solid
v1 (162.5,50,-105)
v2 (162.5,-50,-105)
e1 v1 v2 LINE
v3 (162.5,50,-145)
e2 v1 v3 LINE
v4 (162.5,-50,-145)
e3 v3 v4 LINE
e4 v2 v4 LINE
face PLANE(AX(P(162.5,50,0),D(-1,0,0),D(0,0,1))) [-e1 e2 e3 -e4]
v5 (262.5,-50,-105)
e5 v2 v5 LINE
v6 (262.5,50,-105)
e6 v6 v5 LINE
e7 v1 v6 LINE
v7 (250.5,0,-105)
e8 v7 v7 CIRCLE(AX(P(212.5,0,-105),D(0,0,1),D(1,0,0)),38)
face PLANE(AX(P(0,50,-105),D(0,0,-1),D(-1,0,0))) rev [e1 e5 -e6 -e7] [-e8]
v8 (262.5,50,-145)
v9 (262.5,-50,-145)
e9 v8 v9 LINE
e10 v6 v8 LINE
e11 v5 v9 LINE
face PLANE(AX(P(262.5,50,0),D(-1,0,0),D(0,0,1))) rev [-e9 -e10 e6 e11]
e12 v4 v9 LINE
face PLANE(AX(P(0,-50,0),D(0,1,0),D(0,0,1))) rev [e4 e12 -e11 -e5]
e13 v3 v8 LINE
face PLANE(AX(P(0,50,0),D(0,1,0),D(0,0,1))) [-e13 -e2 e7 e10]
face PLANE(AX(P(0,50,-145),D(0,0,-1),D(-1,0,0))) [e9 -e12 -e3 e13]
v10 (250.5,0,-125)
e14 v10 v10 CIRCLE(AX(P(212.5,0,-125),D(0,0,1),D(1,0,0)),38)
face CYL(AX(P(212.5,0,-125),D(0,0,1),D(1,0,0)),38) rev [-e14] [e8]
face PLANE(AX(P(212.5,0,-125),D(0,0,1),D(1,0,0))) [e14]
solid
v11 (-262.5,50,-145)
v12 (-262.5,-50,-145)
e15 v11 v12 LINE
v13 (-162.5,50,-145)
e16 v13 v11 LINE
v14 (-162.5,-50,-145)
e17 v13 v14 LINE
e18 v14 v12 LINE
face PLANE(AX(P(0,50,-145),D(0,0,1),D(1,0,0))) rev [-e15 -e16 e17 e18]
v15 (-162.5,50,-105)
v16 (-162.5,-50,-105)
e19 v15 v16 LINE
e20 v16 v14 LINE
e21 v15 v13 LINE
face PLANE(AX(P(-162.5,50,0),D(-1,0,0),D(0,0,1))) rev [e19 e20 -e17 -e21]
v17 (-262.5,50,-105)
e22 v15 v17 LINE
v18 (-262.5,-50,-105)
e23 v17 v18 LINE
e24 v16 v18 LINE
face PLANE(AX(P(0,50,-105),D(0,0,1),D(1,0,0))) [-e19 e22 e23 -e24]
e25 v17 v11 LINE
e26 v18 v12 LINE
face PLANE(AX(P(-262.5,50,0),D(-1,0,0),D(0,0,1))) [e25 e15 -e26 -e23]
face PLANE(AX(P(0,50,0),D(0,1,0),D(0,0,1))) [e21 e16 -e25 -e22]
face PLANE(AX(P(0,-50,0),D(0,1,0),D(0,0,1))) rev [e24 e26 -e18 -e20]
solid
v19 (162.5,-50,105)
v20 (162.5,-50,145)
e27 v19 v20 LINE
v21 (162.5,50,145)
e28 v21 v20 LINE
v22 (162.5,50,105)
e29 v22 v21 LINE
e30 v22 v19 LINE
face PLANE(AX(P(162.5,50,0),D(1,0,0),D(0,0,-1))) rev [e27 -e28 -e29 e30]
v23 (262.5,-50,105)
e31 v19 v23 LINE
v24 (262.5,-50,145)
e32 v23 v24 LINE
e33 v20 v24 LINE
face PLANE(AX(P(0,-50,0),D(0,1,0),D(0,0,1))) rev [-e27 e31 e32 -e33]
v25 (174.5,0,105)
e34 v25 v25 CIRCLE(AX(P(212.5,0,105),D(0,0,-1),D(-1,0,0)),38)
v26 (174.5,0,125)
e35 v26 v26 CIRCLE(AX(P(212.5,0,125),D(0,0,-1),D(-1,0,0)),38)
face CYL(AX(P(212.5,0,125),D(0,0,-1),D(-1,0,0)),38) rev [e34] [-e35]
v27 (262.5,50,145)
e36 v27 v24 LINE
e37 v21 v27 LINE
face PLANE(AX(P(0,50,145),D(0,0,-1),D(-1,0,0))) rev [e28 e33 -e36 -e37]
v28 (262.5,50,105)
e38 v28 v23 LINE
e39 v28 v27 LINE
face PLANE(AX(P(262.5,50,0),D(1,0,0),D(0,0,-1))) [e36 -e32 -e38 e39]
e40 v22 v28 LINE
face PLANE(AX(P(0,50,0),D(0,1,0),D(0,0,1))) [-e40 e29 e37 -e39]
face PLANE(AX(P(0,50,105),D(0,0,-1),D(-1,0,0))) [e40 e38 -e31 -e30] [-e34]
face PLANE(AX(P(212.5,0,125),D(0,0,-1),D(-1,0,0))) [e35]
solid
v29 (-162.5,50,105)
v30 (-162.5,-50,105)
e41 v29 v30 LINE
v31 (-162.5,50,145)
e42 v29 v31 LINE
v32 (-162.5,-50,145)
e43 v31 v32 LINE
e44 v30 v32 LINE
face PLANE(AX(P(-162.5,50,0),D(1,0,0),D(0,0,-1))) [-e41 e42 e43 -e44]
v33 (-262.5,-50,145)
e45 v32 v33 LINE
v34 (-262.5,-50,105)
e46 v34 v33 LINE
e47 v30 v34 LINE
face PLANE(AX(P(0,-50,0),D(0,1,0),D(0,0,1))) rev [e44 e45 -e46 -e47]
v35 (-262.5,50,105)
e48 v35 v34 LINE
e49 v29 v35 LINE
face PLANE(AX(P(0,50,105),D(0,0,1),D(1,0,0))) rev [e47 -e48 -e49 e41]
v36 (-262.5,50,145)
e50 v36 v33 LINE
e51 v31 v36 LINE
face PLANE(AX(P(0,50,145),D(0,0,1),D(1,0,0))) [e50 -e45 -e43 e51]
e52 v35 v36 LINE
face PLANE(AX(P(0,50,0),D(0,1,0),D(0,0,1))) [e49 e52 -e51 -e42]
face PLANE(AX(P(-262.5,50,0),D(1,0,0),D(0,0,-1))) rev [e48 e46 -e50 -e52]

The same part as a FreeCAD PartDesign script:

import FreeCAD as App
import Part
import Sketcher
from FreeCAD import Vector

doc = App.newDocument("Part")
body = doc.addObject("PartDesign::Body", "Body")

# Sketch on XZ plane
sketch1 = body.newObject("Sketcher::SketchObject", "Sketch")
sketch1.AttachmentSupport = (doc.getObject("XZ_Plane"), [""])
sketch1.MapMode = "FlatFace"
sketch1.addGeometry(Part.LineSegment(Vector(162, -145, 0), Vector(162, -105, 0)), False)
sketch1.addGeometry(Part.LineSegment(Vector(162, -105, 0), Vector(262, -105, 0)), False)
sketch1.addGeometry(Part.LineSegment(Vector(262, -105, 0), Vector(262, -145, 0)), False)
sketch1.addGeometry(Part.LineSegment(Vector(262, -145, 0), Vector(162, -145, 0)), False)
sketch1.addConstraint(Sketcher.Constraint("Coincident", 0, 2, 1, 1))
sketch1.addConstraint(Sketcher.Constraint("Coincident", 1, 2, 2, 1))
sketch1.addConstraint(Sketcher.Constraint("Coincident", 2, 2, 3, 1))
sketch1.addConstraint(Sketcher.Constraint("Coincident", 3, 2, 0, 1))
sketch1.addConstraint(Sketcher.Constraint("Vertical", 0))
sketch1.addConstraint(Sketcher.Constraint("Horizontal", 1))
sketch1.addConstraint(Sketcher.Constraint("Vertical", 2))
sketch1.addConstraint(Sketcher.Constraint("Horizontal", 3))
sketch1.addConstraint(Sketcher.Constraint("DistanceX", 1, 1, 1, 2, 100.0))
sketch1.addConstraint(Sketcher.Constraint("DistanceY", 0, 1, 0, 2, 40.0))
sketch1.addConstraint(Sketcher.Constraint("DistanceY", 0, 2, -1, 1, 105.0))
sketch1.addConstraint(Sketcher.Constraint("DistanceX", -1, 1, 0, 2, 162.5))
pad1 = body.newObject("PartDesign::Pad", "Pad")
pad1.Profile = sketch1
pad1.Length = 100
pad1.Midplane = True

# Sketch on XY plane
sketch2 = body.newObject("Sketcher::SketchObject", "Sketch001")
sketch2.AttachmentSupport = (doc.getObject("XY_Plane"), [""])
sketch2.MapMode = "FlatFace"
sketch2.AttachmentOffset = App.Placement(Vector(0, 0, -105), App.Rotation())
sketch2.addGeometry(Part.Circle(Vector(212, 0, 0), Vector(0, 0, 1), 38), False)
sketch2.addConstraint(Sketcher.Constraint("PointOnObject", 0, 3, -1))
sketch2.addConstraint(Sketcher.Constraint("Diameter", 0, 76.0))
sketch2.addConstraint(Sketcher.Constraint("DistanceX", -1, 1, 0, 3, 212.5))
pocket1 = body.newObject("PartDesign::Pocket", "Pocket")
pocket1.Profile = sketch2
pocket1.Length = 20
body2 = doc.addObject("PartDesign::Body", "Body001")

# Sketch on XZ plane
sketch3 = body2.newObject("Sketcher::SketchObject", "Sketch002")
sketch3.AttachmentSupport = (doc.getObject("XZ_Plane001"), [""])
sketch3.MapMode = "FlatFace"
sketch3.addGeometry(Part.LineSegment(Vector(162, 105, 0), Vector(162, 145, 0)), False)
sketch3.addGeometry(Part.LineSegment(Vector(162, 145, 0), Vector(262, 145, 0)), False)
sketch3.addGeometry(Part.LineSegment(Vector(262, 145, 0), Vector(262, 105, 0)), False)
sketch3.addGeometry(Part.LineSegment(Vector(262, 105, 0), Vector(162, 105, 0)), False)
sketch3.addConstraint(Sketcher.Constraint("Coincident", 0, 2, 1, 1))
sketch3.addConstraint(Sketcher.Constraint("Coincident", 1, 2, 2, 1))
sketch3.addConstraint(Sketcher.Constraint("Coincident", 2, 2, 3, 1))
sketch3.addConstraint(Sketcher.Constraint("Coincident", 3, 2, 0, 1))
sketch3.addConstraint(Sketcher.Constraint("Vertical", 0))
sketch3.addConstraint(Sketcher.Constraint("Horizontal", 1))
sketch3.addConstraint(Sketcher.Constraint("Vertical", 2))
sketch3.addConstraint(Sketcher.Constraint("Horizontal", 3))
sketch3.addConstraint(Sketcher.Constraint("DistanceX", 1, 1, 1, 2, 100.0))
sketch3.addConstraint(Sketcher.Constraint("DistanceY", 0, 1, 0, 2, 40.0))
sketch3.addConstraint(Sketcher.Constraint("DistanceY", -1, 1, 0, 2, 145.0))
sketch3.addConstraint(Sketcher.Constraint("DistanceX", -1, 1, 0, 2, 162.5))
pad2 = body2.newObject("PartDesign::Pad", "Pad001")
pad2.Profile = sketch3
pad2.Length = 100
pad2.Midplane = True

# Sketch on XY plane
sketch4 = body2.newObject("Sketcher::SketchObject", "Sketch003")
sketch4.AttachmentSupport = (doc.getObject("XY_Plane001"), [""])
sketch4.MapMode = "FlatFace"
sketch4.AttachmentOffset = App.Placement(Vector(0, 0, 105), App.Rotation())
sketch4.addGeometry(Part.Circle(Vector(212, 0, 0), Vector(0, 0, 1), 38), False)
sketch4.addConstraint(Sketcher.Constraint("PointOnObject", 0, 3, -1))
sketch4.addConstraint(Sketcher.Constraint("Diameter", 0, 76.0))
sketch4.addConstraint(Sketcher.Constraint("DistanceX", -1, 1, 0, 3, 212.5))
pocket2 = body2.newObject("PartDesign::Pocket", "Pocket001")
pocket2.Profile = sketch4
pocket2.Length = 20
pocket2.Reversed = True
body3 = doc.addObject("PartDesign::Body", "Body002")

# Sketch on XZ plane
sketch5 = body3.newObject("Sketcher::SketchObject", "Sketch004")
sketch5.AttachmentSupport = (doc.getObject("XZ_Plane002"), [""])
sketch5.MapMode = "FlatFace"
sketch5.addGeometry(Part.LineSegment(Vector(-262, 105, 0), Vector(-262, 145, 0)), False)
sketch5.addGeometry(Part.LineSegment(Vector(-262, 145, 0), Vector(-162, 145, 0)), False)
sketch5.addGeometry(Part.LineSegment(Vector(-162, 145, 0), Vector(-162, 105, 0)), False)
sketch5.addGeometry(Part.LineSegment(Vector(-162, 105, 0), Vector(-262, 105, 0)), False)
sketch5.addConstraint(Sketcher.Constraint("Coincident", 0, 2, 1, 1))
sketch5.addConstraint(Sketcher.Constraint("Coincident", 1, 2, 2, 1))
sketch5.addConstraint(Sketcher.Constraint("Coincident", 2, 2, 3, 1))
sketch5.addConstraint(Sketcher.Constraint("Coincident", 3, 2, 0, 1))
sketch5.addConstraint(Sketcher.Constraint("Vertical", 0))
sketch5.addConstraint(Sketcher.Constraint("Horizontal", 1))
sketch5.addConstraint(Sketcher.Constraint("Vertical", 2))
sketch5.addConstraint(Sketcher.Constraint("Horizontal", 3))
sketch5.addConstraint(Sketcher.Constraint("DistanceX", 1, 1, 1, 2, 100.0))
sketch5.addConstraint(Sketcher.Constraint("DistanceY", 0, 1, 0, 2, 40.0))
sketch5.addConstraint(Sketcher.Constraint("DistanceY", -1, 1, 0, 2, 145.0))
sketch5.addConstraint(Sketcher.Constraint("DistanceX", 0, 2, -1, 1, 262.5))
pad3 = body3.newObject("PartDesign::Pad", "Pad002")
pad3.Profile = sketch5
pad3.Length = 100
pad3.Midplane = True
body4 = doc.addObject("PartDesign::Body", "Body003")

# Sketch on XZ plane
sketch6 = body4.newObject("Sketcher::SketchObject", "Sketch005")
sketch6.AttachmentSupport = (doc.getObject("XZ_Plane003"), [""])
sketch6.MapMode = "FlatFace"
sketch6.addGeometry(Part.LineSegment(Vector(-262, -145, 0), Vector(-262, -105, 0)), False)
sketch6.addGeometry(Part.LineSegment(Vector(-262, -105, 0), Vector(-162, -105, 0)), False)
sketch6.addGeometry(Part.LineSegment(Vector(-162, -105, 0), Vector(-162, -145, 0)), False)
sketch6.addGeometry(Part.LineSegment(Vector(-162, -145, 0), Vector(-262, -145, 0)), False)
sketch6.addConstraint(Sketcher.Constraint("Coincident", 0, 2, 1, 1))
sketch6.addConstraint(Sketcher.Constraint("Coincident", 1, 2, 2, 1))
sketch6.addConstraint(Sketcher.Constraint("Coincident", 2, 2, 3, 1))
sketch6.addConstraint(Sketcher.Constraint("Coincident", 3, 2, 0, 1))
sketch6.addConstraint(Sketcher.Constraint("Vertical", 0))
sketch6.addConstraint(Sketcher.Constraint("Horizontal", 1))
sketch6.addConstraint(Sketcher.Constraint("Vertical", 2))
sketch6.addConstraint(Sketcher.Constraint("Horizontal", 3))
sketch6.addConstraint(Sketcher.Constraint("DistanceX", 1, 1, 1, 2, 100.0))
sketch6.addConstraint(Sketcher.Constraint("DistanceY", 0, 1, 0, 2, 40.0))
sketch6.addConstraint(Sketcher.Constraint("DistanceY", 0, 2, -1, 1, 105.0))
sketch6.addConstraint(Sketcher.Constraint("DistanceX", 0, 2, -1, 1, 262.5))
pad4 = body4.newObject("PartDesign::Pad", "Pad003")
pad4.Profile = sketch6
pad4.Length = 100
pad4.Midplane = True

doc.recompute()
